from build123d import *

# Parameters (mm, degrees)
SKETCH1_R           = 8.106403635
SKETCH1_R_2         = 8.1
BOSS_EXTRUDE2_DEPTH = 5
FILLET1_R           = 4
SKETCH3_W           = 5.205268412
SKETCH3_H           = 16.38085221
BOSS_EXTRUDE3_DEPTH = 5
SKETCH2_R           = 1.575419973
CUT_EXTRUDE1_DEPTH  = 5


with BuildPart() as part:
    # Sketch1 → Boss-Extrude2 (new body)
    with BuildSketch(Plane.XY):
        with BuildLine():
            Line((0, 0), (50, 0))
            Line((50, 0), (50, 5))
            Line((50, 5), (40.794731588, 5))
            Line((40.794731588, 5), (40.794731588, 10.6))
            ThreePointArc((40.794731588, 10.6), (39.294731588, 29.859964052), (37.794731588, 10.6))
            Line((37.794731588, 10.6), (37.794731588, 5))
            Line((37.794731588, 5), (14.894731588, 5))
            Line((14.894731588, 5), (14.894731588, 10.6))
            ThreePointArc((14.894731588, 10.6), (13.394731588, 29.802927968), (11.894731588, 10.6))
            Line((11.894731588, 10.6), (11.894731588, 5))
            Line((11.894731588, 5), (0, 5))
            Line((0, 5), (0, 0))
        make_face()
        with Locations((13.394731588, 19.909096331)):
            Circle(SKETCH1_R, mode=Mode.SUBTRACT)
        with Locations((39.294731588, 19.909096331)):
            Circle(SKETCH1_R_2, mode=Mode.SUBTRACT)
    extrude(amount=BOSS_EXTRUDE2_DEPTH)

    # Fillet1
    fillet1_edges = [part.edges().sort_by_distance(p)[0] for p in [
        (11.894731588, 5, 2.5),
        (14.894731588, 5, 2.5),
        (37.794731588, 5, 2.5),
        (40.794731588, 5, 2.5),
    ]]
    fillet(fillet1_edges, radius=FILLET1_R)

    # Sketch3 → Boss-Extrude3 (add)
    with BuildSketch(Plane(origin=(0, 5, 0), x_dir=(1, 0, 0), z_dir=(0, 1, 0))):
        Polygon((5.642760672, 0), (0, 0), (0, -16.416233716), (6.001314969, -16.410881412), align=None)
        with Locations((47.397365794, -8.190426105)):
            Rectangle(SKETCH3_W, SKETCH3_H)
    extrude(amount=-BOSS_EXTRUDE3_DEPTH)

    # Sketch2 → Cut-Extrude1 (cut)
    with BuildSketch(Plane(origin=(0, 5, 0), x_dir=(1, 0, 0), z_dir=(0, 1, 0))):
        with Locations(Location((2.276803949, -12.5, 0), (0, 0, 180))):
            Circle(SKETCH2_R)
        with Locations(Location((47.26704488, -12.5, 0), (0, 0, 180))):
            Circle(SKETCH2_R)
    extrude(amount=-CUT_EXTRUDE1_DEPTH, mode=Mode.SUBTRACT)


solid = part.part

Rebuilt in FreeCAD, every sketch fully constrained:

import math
import FreeCAD as App
import Part
import Sketcher

V = App.Vector
Q = App.Units.Quantity


def edges_at(feature, points):
    """Names of the edges that pass closest to the given points."""
    edges = feature.Shape.Edges
    near = lambda p: min(range(len(edges)), key=lambda i: edges[i].distToShape(Part.Vertex(*p))[0])
    return sorted({f"Edge{near(p) + 1}" for p in points})


def add_polygon(sketch, points):
    """Adds a closed chain of lines whose ends are joined by coincident constraints."""
    first, n = sketch.GeometryCount, len(points)
    for a, b in zip(points, points[1:] + points[:1]):
        sketch.addGeometry(Part.LineSegment(App.Vector(*a, 0), App.Vector(*b, 0)), False)
    for i in range(n):
        sketch.addConstraint(Sketcher.Constraint("Coincident", first + i, 2, first + (i + 1) % n, 1))

doc = App.newDocument("Part")
body = doc.addObject("PartDesign::Body", "Body")

# Sketch on XY plane
sketch1 = body.newObject("Sketcher::SketchObject", "Sketch")
sketch1.AttachmentSupport = (doc.getObject("XY_Plane"), [""])
sketch1.MapMode = "FlatFace"
sketch1.addGeometry([
    Part.LineSegment(V(0, 0, 0), V(50, 0, 0)),  # 0
    Part.LineSegment(V(50, 0, 0), V(50, 5, 0)),  # 1
    Part.LineSegment(V(50, 5, 0), V(40.8, 5, 0)),  # 2
    Part.LineSegment(V(40.8, 5, 0), V(40.8, 10.6, 0)),  # 3
    Part.ArcOfCircle(Part.Circle(V(39.3, 20.2, 0), V(0, 0, 1), 9.7), math.radians(-81), math.radians(261)),  # 4
    Part.LineSegment(V(37.8, 10.6, 0), V(37.8, 5, 0)),  # 5
    Part.LineSegment(V(37.8, 5, 0), V(14.9, 5, 0)),  # 6
    Part.LineSegment(V(14.9, 5, 0), V(14.9, 10.6, 0)),  # 7
    Part.ArcOfCircle(Part.Circle(V(13.4, 20.1, 0), V(0, 0, 1), 9.7), math.radians(-81), math.radians(261)),  # 8
    Part.LineSegment(V(11.9, 10.6, 0), V(11.9, 5, 0)),  # 9
    Part.LineSegment(V(11.9, 5, 0), V(0, 5, 0)),  # 10
    Part.LineSegment(V(0, 5, 0), V(0, 0, 0)),  # 11
    Part.Circle(V(13.4, 19.9, 0), V(0, 0, 1), 8.1),  # 12
    Part.Circle(V(39.3, 19.9, 0), V(0, 0, 1), 8.1),  # 13
], False)
sketch1.addConstraint([
    Sketcher.Constraint("Coincident", 0, 2, 1, 1),
    Sketcher.Constraint("Coincident", 1, 2, 2, 1),
    Sketcher.Constraint("Coincident", 2, 2, 3, 1),
    Sketcher.Constraint("Coincident", 3, 2, 4, 1),
    Sketcher.Constraint("Coincident", 4, 2, 5, 1),
    Sketcher.Constraint("Coincident", 5, 2, 6, 1),
    Sketcher.Constraint("Coincident", 6, 2, 7, 1),
    Sketcher.Constraint("Coincident", 7, 2, 8, 1),
    Sketcher.Constraint("Coincident", 8, 2, 9, 1),
    Sketcher.Constraint("Coincident", 9, 2, 10, 1),
    Sketcher.Constraint("Coincident", 10, 2, 11, 1),
    Sketcher.Constraint("Coincident", 11, 2, 0, 1),
    Sketcher.Constraint("Horizontal", 0),
    Sketcher.Constraint("Vertical", 1),
    Sketcher.Constraint("Horizontal", 2),
    Sketcher.Constraint("Vertical", 3),
    Sketcher.Constraint("Vertical", 5),
    Sketcher.Constraint("Horizontal", 6),
    Sketcher.Constraint("Vertical", 7),
    Sketcher.Constraint("Vertical", 9),
    Sketcher.Constraint("Horizontal", 10),
    Sketcher.Constraint("Vertical", 11),
    Sketcher.Constraint("Coincident", 11, 2, -1, 1),
    Sketcher.Constraint("Horizontal", 12, 3, 13, 3),
    Sketcher.Constraint("Horizontal", 3, 2, 4, 2),
    Sketcher.Constraint("Horizontal", 2, 2, 5, 2),
    Sketcher.Constraint("Horizontal", 4, 2, 7, 2),
    Sketcher.Constraint("Horizontal", 7, 2, 8, 2),
    Sketcher.Constraint("Horizontal", 6, 2, 9, 2),
    Sketcher.Constraint("Vertical", 8, 3, 12, 3),
    Sketcher.Constraint("Vertical", 4, 3, 13, 3),
    Sketcher.Constraint("Diameter", 13, Q("16.2 mm")),
    Sketcher.Constraint("DistanceX", 0, 1, 0, 2, Q("50 mm")),
    Sketcher.Constraint("DistanceY", 1, 1, 1, 2, Q("5 mm")),
    Sketcher.Constraint("DistanceX", 6, 2, 6, 1, Q("22.9 mm")),
    Sketcher.Constraint("DistanceY", 3, 1, 3, 2, Q("5.6 mm")),
    Sketcher.Constraint("DistanceX", 4, 2, 3, 2, Q("3 mm")),
    Sketcher.Constraint("DistanceX", 8, 2, 7, 2, Q("3 mm")),
    Sketcher.Constraint("Radius", 8, Q("9.660049 mm")),
    Sketcher.Constraint("Diameter", 12, Q("16.212807 mm")),
    Sketcher.Constraint("Radius", 4, Q("9.688393 mm")),
    Sketcher.Constraint("DistanceX", 2, 2, 2, 1, Q("9.205268 mm")),
    Sketcher.Constraint("DistanceY", -1, 1, 12, 3, Q("19.909096 mm")),
])
pad1 = body.newObject("PartDesign::Pad", "Pad")
pad1.Profile = sketch1
pad1.Length = 5
doc.recompute()

fillet = body.newObject("PartDesign::Fillet", "Fillet")
fillet.Base = (pad1, edges_at(pad1, [
    (11.895, 5, 2.5),
    (14.895, 5, 2.5),
    (37.795, 5, 2.5),
    (40.795, 5, 2.5),
]))
fillet.Radius = 4

# Sketch on XZ plane
sketch2 = body.newObject("Sketcher::SketchObject", "Sketch001")
sketch2.AttachmentSupport = (doc.getObject("XZ_Plane"), [""])
sketch2.MapMode = "FlatFace"
sketch2.AttachmentOffset = App.Placement(V(0, 0, -5), App.Rotation())
add_polygon(sketch2, [(6, 0), (0, 0), (0, 16), (6, 16)])  # lines 0-3
add_polygon(sketch2, [(45, 0), (45, 16), (50, 16), (50, 0)])  # lines 4-7
sketch2.addConstraint([
    Sketcher.Constraint("Horizontal", 0),
    Sketcher.Constraint("Vertical", 1),
    Sketcher.Constraint("Vertical", 4),
    Sketcher.Constraint("Horizontal", 5),
    Sketcher.Constraint("Vertical", 6),
    Sketcher.Constraint("Horizontal", 7),
    Sketcher.Constraint("Coincident", 0, 2, -1, 1),
    Sketcher.Constraint("PointOnObject", 6, 2, -1),
    Sketcher.Constraint("DistanceX", -1, 1, 5, 2, Q("50 mm")),
    Sketcher.Constraint("DistanceX", 0, 2, 0, 1, Q("5.642761 mm")),
    Sketcher.Constraint("DistanceX", 5, 1, 5, 2, Q("5.205268 mm")),
    Sketcher.Constraint("DistanceY", 1, 1, 1, 2, Q("16.416234 mm")),
    Sketcher.Constraint("DistanceY", 4, 1, 4, 2, Q("16.380852 mm")),
    Sketcher.Constraint("DistanceY", -1, 1, 2, 2, Q("16.410881 mm")),
    Sketcher.Constraint("Distance", 2, Q("6.001317 mm")),
])
pad2 = body.newObject("PartDesign::Pad", "Pad001")
pad2.Profile = sketch2
pad2.Length = 5

# Sketch on XZ plane
sketch3 = body.newObject("Sketcher::SketchObject", "Sketch002")
sketch3.AttachmentSupport = (doc.getObject("XZ_Plane"), [""])
sketch3.MapMode = "FlatFace"
sketch3.AttachmentOffset = App.Placement(V(0, 0, -5), App.Rotation())
sketch3.addGeometry([
    Part.Circle(V(2.3, 12.5, 0), V(0, 0, 1), 1.6),
    Part.Circle(V(47.3, 12.5, 0), V(0, 0, 1), 1.6),
], False)
sketch3.addConstraint([
    Sketcher.Constraint("Equal", 0, 1),
    Sketcher.Constraint("Horizontal", 0, 3, 1, 3),
    Sketcher.Constraint("DistanceY", -1, 1, 0, 3, Q("12.5 mm")),
    Sketcher.Constraint("Diameter", 0, Q("3.15084 mm")),
    Sketcher.Constraint("DistanceX", 0, 3, 1, 3, Q("44.990241 mm")),
    Sketcher.Constraint("DistanceX", -1, 1, 0, 3, Q("2.276804 mm")),
])
pocket1 = body.newObject("PartDesign::Pocket", "Pocket")
pocket1.Profile = sketch3
pocket1.Length = 5
pocket1.Reversed = True

doc.recompute()
